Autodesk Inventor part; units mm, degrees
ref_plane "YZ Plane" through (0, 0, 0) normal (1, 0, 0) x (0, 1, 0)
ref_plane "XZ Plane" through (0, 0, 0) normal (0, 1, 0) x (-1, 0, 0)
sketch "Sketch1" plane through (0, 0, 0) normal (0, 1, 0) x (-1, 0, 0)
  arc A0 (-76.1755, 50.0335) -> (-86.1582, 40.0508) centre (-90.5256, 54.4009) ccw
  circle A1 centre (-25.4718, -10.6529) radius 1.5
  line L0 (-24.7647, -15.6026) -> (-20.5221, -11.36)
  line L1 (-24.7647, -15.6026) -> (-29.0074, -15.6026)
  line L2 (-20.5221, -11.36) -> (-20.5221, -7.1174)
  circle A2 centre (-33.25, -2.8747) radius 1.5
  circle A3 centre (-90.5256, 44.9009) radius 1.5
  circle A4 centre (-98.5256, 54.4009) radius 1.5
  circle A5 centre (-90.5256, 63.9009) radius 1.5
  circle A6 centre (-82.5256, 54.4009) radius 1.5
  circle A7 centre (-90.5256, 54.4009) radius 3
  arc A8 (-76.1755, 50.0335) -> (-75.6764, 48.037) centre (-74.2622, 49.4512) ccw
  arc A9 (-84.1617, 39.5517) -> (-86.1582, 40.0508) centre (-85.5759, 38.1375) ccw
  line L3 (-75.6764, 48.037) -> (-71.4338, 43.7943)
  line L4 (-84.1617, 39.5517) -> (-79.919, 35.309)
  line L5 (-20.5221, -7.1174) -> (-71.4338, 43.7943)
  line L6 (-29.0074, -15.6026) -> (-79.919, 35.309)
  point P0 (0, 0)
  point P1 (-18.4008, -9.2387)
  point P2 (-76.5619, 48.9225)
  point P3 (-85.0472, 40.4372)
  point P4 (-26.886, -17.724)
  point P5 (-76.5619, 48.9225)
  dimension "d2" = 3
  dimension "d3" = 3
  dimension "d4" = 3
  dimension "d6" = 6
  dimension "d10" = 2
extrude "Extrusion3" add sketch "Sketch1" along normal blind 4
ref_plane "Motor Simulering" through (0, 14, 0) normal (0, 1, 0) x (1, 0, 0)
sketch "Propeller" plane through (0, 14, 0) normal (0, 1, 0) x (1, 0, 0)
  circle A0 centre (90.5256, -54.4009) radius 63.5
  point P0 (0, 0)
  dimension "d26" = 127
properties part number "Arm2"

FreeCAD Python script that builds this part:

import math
import FreeCAD as App
import Part
import Sketcher
from FreeCAD import Vector
Q = App.Units.Quantity

doc = App.newDocument("Part")
body = doc.addObject("PartDesign::Body", "Body")

sketch1 = body.newObject("Sketcher::SketchObject", "Sketch")
sketch1.AttachmentSupport = (doc.getObject("XZ_Plane"), [""])
sketch1.MapMode = "FlatFace"
sketch1.addGeometry([
    Part.ArcOfCircle(Part.Circle(Vector(74.3, 49.5, 0), Vector(0, 0, 1), 2), math.radians(-45), math.radians(17)),
    Part.ArcOfCircle(Part.Circle(Vector(90.5, 54.4, 0), Vector(0, 0, 1), 15), math.radians(-107), math.radians(197)),
    Part.ArcOfCircle(Part.Circle(Vector(85.6, 38.1, 0), Vector(0, 0, 1), 2), math.radians(73), math.radians(135)),
    Part.LineSegment(Vector(84.2, 39.6, 0), Vector(29, -15.6, 0)),
    Part.LineSegment(Vector(29, -15.6, 0), Vector(24.8, -15.6, 0)),
    Part.LineSegment(Vector(24.8, -15.6, 0), Vector(20.5, -11.4, 0)),
    Part.LineSegment(Vector(20.5, -11.4, 0), Vector(20.5, -7.1, 0)),
    Part.LineSegment(Vector(20.5, -7.1, 0), Vector(71.4, 43.8, 0)),
    Part.LineSegment(Vector(71.4, 43.8, 0), Vector(75.7, 48, 0)),
    Part.Circle(Vector(25.5, -10.7, 0), Vector(0, 0, 1), 1.5),
    Part.Circle(Vector(33.2, -2.9, 0), Vector(0, 0, 1), 1.5),
    Part.Circle(Vector(90.5, 44.9, 0), Vector(0, 0, 1), 1.5),
    Part.Circle(Vector(98.5, 54.4, 0), Vector(0, 0, 1), 1.5),
    Part.Circle(Vector(90.5, 54.4, 0), Vector(0, 0, 1), 3),
    Part.Circle(Vector(90.5, 63.9, 0), Vector(0, 0, 1), 1.5),
    Part.Circle(Vector(82.5, 54.4, 0), Vector(0, 0, 1), 1.5),
], False)
sketch1.addConstraint([
    Sketcher.Constraint("Tangent", 0, 2, 1, 2),
    Sketcher.Constraint("Tangent", 1, 1, 2, 1),
    Sketcher.Constraint("Tangent", 2, 2, 3, 1),
    Sketcher.Constraint("Coincident", 3, 2, 4, 1),
    Sketcher.Constraint("Coincident", 4, 2, 5, 1),
    Sketcher.Constraint("Coincident", 5, 2, 6, 1),
    Sketcher.Constraint("Coincident", 6, 2, 7, 1),
    Sketcher.Constraint("Coincident", 7, 2, 8, 1),
    Sketcher.Constraint("Tangent", 8, 2, 0, 1),
    Sketcher.Constraint("Horizontal", 4),
    Sketcher.Constraint("Vertical", 6),
    Sketcher.Constraint("Coincident", 13, 3, 1, 3),
    Sketcher.Constraint("Equal", 0, 2),
    Sketcher.Constraint("Equal", 9, 10),
    Sketcher.Constraint("Equal", 10, 11),
    Sketcher.Constraint("Equal", 11, 12),
    Sketcher.Constraint("Equal", 12, 14),
    Sketcher.Constraint("Equal", 14, 15),
    Sketcher.Constraint("Perpendicular", 3, 5),
    Sketcher.Constraint("Perpendicular", 5, 7),
    Sketcher.Constraint("Parallel", 7, 8),
    Sketcher.Constraint("Horizontal", 1, 3, 12, 3),
    Sketcher.Constraint("Horizontal", 13, 3, 15, 3),
    Sketcher.Constraint("Vertical", 1, 3, 11, 3),
    Sketcher.Constraint("Vertical", 13, 3, 14, 3),
    Sketcher.Constraint("Equal", 4, 6),
    Sketcher.Constraint("Equal", 5, 8),
    Sketcher.Constraint("Diameter", 9, 3.0),
    Sketcher.Constraint("Diameter", 13, 6.0),
    Sketcher.Constraint("Radius", 0, 2.0),
    Sketcher.Constraint("Distance", 5, 6.0),
    Sketcher.Constraint("Radius", 1, 15.0),
    Sketcher.Constraint("Angle", 3, Q("-135 deg")),
    Sketcher.Constraint("Distance", 3, 78.0),
    Sketcher.Constraint("Distance", 7, 72.0),
    Sketcher.Constraint("DistanceX", 1, 3, 12, 3, 8.0),
    Sketcher.Constraint("DistanceY", 11, 3, 14, 3, 19.0),
    Sketcher.Constraint("DistanceX", 15, 3, 1, 3, 8.0),
    Sketcher.Constraint("DistanceY", 11, 3, 1, 3, 9.5),
    Sketcher.Constraint("DistanceX", -1, 1, 10, 3, 33.25),
    Sketcher.Constraint("DistanceY", 5, 2, -1, 1, 11.36),
    Sketcher.Constraint("DistanceX", 0, 2, 15, 3, 6.35),
    Sketcher.Constraint("DistanceX", -1, 1, 2, 3, 85.576),
    Sketcher.Constraint("DistanceY", 9, 3, -1, 1, 10.653),
    Sketcher.Constraint("DistanceX", 9, 3, 2, 3, 60.104),
    Sketcher.Constraint("DistanceY", 10, 3, 0, 3, 52.326),
])
pad1 = body.newObject("PartDesign::Pad", "Pad")
pad1.Profile = sketch1
pad1.Length = 4
pad1.Reversed = True

doc.recompute()
